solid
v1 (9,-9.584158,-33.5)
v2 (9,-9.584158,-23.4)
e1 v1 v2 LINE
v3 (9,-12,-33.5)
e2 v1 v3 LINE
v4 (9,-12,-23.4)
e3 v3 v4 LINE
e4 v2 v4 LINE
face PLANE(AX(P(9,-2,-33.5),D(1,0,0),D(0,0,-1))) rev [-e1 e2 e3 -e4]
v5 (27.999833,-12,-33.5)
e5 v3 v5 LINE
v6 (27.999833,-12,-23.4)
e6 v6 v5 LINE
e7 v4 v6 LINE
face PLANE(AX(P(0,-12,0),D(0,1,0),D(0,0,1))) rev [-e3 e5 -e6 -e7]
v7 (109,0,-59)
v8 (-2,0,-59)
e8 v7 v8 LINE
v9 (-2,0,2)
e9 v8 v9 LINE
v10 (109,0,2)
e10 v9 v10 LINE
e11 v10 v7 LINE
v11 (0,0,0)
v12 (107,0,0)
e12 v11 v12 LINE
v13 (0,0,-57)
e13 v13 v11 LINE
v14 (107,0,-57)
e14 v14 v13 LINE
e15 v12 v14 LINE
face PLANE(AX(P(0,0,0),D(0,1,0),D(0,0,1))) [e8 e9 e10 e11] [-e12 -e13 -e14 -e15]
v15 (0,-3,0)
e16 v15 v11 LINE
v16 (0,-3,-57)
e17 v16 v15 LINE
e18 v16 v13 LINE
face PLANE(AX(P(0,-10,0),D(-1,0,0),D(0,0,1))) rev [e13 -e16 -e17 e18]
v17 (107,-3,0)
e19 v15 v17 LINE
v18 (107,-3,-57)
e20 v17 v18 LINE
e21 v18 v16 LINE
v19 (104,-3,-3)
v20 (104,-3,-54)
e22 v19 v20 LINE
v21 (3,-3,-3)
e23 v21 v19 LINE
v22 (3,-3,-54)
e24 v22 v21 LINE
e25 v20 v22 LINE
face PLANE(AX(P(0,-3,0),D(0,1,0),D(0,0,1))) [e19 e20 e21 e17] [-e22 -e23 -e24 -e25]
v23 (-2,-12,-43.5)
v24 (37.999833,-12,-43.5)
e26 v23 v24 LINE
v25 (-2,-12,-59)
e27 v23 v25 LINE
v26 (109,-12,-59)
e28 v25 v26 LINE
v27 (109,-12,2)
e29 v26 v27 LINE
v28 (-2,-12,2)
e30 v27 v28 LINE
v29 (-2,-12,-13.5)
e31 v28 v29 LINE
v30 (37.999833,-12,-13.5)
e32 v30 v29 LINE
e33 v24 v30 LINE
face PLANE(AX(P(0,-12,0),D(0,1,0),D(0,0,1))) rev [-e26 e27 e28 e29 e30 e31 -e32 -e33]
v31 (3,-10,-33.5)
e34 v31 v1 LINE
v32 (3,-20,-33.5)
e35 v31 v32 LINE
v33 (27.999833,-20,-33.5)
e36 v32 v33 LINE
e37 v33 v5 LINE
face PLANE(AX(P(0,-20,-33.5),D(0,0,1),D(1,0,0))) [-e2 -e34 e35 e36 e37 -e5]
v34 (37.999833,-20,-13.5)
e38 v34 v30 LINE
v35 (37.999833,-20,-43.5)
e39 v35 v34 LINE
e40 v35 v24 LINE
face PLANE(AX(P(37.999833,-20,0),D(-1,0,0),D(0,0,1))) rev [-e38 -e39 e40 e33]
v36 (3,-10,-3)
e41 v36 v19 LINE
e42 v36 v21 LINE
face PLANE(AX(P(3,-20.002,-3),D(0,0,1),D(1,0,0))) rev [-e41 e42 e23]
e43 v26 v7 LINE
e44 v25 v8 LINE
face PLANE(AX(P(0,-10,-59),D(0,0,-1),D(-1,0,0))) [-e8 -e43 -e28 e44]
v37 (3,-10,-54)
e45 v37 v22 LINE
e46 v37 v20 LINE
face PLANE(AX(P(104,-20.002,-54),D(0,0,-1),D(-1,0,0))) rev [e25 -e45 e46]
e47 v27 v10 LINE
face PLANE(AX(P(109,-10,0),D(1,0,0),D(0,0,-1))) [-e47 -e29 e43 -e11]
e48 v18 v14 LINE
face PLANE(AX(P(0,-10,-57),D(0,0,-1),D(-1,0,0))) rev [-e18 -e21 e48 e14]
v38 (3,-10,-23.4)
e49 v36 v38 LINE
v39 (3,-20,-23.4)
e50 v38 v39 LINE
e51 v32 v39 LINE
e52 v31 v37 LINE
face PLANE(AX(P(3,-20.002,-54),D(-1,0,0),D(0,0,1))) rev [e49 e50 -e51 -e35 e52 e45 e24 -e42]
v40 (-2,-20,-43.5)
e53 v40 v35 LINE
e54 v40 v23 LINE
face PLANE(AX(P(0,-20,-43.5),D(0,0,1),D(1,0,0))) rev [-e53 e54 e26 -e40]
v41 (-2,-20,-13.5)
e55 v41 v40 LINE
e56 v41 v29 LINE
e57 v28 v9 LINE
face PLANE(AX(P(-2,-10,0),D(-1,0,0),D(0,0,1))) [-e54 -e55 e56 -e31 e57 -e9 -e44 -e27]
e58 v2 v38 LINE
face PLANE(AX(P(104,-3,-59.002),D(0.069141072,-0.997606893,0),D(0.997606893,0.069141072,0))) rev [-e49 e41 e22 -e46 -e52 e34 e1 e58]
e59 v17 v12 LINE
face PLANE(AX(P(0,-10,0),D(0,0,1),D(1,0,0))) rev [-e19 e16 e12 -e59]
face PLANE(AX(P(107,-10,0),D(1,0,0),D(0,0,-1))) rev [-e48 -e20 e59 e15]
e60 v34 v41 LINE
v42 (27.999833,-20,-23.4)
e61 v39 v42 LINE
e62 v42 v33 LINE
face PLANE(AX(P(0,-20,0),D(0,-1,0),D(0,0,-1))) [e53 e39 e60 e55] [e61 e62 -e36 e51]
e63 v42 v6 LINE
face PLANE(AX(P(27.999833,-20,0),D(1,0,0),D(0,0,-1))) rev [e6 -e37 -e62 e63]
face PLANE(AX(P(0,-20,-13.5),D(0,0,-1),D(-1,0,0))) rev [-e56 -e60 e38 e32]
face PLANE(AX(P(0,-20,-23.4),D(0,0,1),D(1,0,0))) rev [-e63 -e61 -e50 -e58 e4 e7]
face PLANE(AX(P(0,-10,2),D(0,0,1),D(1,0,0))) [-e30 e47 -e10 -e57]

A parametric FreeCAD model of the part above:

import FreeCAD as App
import Part
import Sketcher

doc = App.newDocument("Part")
body = doc.addObject("PartDesign::Body", "Body")

# Sketch on XZ plane
sketch1 = body.newObject("Sketcher::SketchObject", "Sketch")
sketch1.AttachmentSupport = (doc.getObject("XZ_Plane"), [""])
sketch1.MapMode = "FlatFace"
sketch1.addGeometry([
    Part.LineSegment(App.Vector(-2, -59, 0), App.Vector(-2, 2, 0)),  # 0
    Part.LineSegment(App.Vector(-2, 2, 0), App.Vector(109, 2, 0)),  # 1
    Part.LineSegment(App.Vector(109, 2, 0), App.Vector(109, -59, 0)),  # 2
    Part.LineSegment(App.Vector(109, -59, 0), App.Vector(-2, -59, 0)),  # 3
    Part.LineSegment(App.Vector(107, 0, 0), App.Vector(0, 0, 0)),  # 4
    Part.LineSegment(App.Vector(0, 0, 0), App.Vector(0, -57, 0)),  # 5
    Part.LineSegment(App.Vector(0, -57, 0), App.Vector(107, -57, 0)),  # 6
    Part.LineSegment(App.Vector(107, -57, 0), App.Vector(107, 0, 0)),  # 7
], False)
sketch1.addConstraint([
    Sketcher.Constraint("Coincident", 0, 2, 1, 1),
    Sketcher.Constraint("Coincident", 1, 2, 2, 1),
    Sketcher.Constraint("Coincident", 2, 2, 3, 1),
    Sketcher.Constraint("Coincident", 3, 2, 0, 1),
    Sketcher.Constraint("Coincident", 4, 2, 5, 1),
    Sketcher.Constraint("Coincident", 5, 2, 6, 1),
    Sketcher.Constraint("Coincident", 6, 2, 7, 1),
    Sketcher.Constraint("Coincident", 7, 2, 4, 1),
    Sketcher.Constraint("Vertical", 0),
    Sketcher.Constraint("Horizontal", 1),
    Sketcher.Constraint("Vertical", 2),
    Sketcher.Constraint("Horizontal", 3),
    Sketcher.Constraint("Horizontal", 4),
    Sketcher.Constraint("Vertical", 5),
    Sketcher.Constraint("Horizontal", 6),
    Sketcher.Constraint("Vertical", 7),
    Sketcher.Constraint("Coincident", 4, 2, -1, 1),
    Sketcher.Constraint("DistanceX", 1, 1, 1, 2, 111.0),
    Sketcher.Constraint("DistanceX", 4, 2, 4, 1, 107.0),
    Sketcher.Constraint("DistanceY", 0, 1, 0, 2, 61.0),
    Sketcher.Constraint("DistanceY", 5, 2, 5, 1, 57.0),
    Sketcher.Constraint("DistanceX", 0, 2, -1, 1, 2.0),
    Sketcher.Constraint("DistanceY", -1, 1, 0, 2, 2.0),
])
pad1 = body.newObject("PartDesign::Pad", "Pad")
pad1.Profile = sketch1
pad1.Length = 10

# Sketch on XZ plane
sketch2 = body.newObject("Sketcher::SketchObject", "Sketch001")
sketch2.AttachmentSupport = (doc.getObject("XZ_Plane"), [""])
sketch2.MapMode = "FlatFace"
sketch2.AttachmentOffset = App.Placement(App.Vector(0, 0, 10), App.Rotation())
sketch2.addGeometry([
    Part.LineSegment(App.Vector(109, -59, 0), App.Vector(109, 2, 0)),
    Part.LineSegment(App.Vector(109, 2, 0), App.Vector(-2, 2, 0)),
    Part.LineSegment(App.Vector(-2, 2, 0), App.Vector(-2, -59, 0)),
    Part.LineSegment(App.Vector(-2, -59, 0), App.Vector(109, -59, 0)),
], False)
sketch2.addConstraint([
    Sketcher.Constraint("Coincident", 0, 2, 1, 1),
    Sketcher.Constraint("Coincident", 1, 2, 2, 1),
    Sketcher.Constraint("Coincident", 2, 2, 3, 1),
    Sketcher.Constraint("Coincident", 3, 2, 0, 1),
    Sketcher.Constraint("Vertical", 0),
    Sketcher.Constraint("Horizontal", 1),
    Sketcher.Constraint("Vertical", 2),
    Sketcher.Constraint("Horizontal", 3),
    Sketcher.Constraint("DistanceX", 1, 2, 1, 1, 111.0),
    Sketcher.Constraint("DistanceY", 0, 1, 0, 2, 61.0),
    Sketcher.Constraint("DistanceX", -1, 1, 0, 2, 109.0),
    Sketcher.Constraint("DistanceY", -1, 1, 0, 2, 2.0),
])
pad2 = body.newObject("PartDesign::Pad", "Pad001")
pad2.Profile = sketch2
pad2.Length = 2

# Sketch on XZ plane
sketch3 = body.newObject("Sketcher::SketchObject", "Sketch002")
sketch3.AttachmentSupport = (doc.getObject("XZ_Plane"), [""])
sketch3.MapMode = "FlatFace"
sketch3.AttachmentOffset = App.Placement(App.Vector(0, 0, 12), App.Rotation())
sketch3.addGeometry([
    Part.LineSegment(App.Vector(-2, -44, 0), App.Vector(38, -44, 0)),  # 0
    Part.LineSegment(App.Vector(38, -44, 0), App.Vector(38, -14, 0)),  # 1
    Part.LineSegment(App.Vector(38, -14, 0), App.Vector(-2, -14, 0)),  # 2
    Part.LineSegment(App.Vector(-2, -14, 0), App.Vector(-2, -44, 0)),  # 3
    Part.LineSegment(App.Vector(28, -34, 0), App.Vector(0, -34, 0)),  # 4
    Part.LineSegment(App.Vector(0, -34, 0), App.Vector(0, -23, 0)),  # 5
    Part.LineSegment(App.Vector(0, -23, 0), App.Vector(28, -23, 0)),  # 6
    Part.LineSegment(App.Vector(28, -23, 0), App.Vector(28, -34, 0)),  # 7
], False)
sketch3.addConstraint([
    Sketcher.Constraint("Coincident", 0, 2, 1, 1),
    Sketcher.Constraint("Coincident", 1, 2, 2, 1),
    Sketcher.Constraint("Coincident", 2, 2, 3, 1),
    Sketcher.Constraint("Coincident", 3, 2, 0, 1),
    Sketcher.Constraint("Coincident", 4, 2, 5, 1),
    Sketcher.Constraint("Coincident", 5, 2, 6, 1),
    Sketcher.Constraint("Coincident", 6, 2, 7, 1),
    Sketcher.Constraint("Coincident", 7, 2, 4, 1),
    Sketcher.Constraint("Horizontal", 0),
    Sketcher.Constraint("Vertical", 1),
    Sketcher.Constraint("Horizontal", 2),
    Sketcher.Constraint("Vertical", 3),
    Sketcher.Constraint("Horizontal", 4),
    Sketcher.Constraint("Vertical", 5),
    Sketcher.Constraint("Horizontal", 6),
    Sketcher.Constraint("Vertical", 7),
    Sketcher.Constraint("PointOnObject", 4, 2, -2),
    Sketcher.Constraint("DistanceY", 1, 1, 1, 2, 30.0),
    Sketcher.Constraint("DistanceY", 5, 1, 5, 2, 10.1),
    Sketcher.Constraint("DistanceX", 2, 2, -1, 1, 2.0),
    Sketcher.Constraint("DistanceY", 3, 2, 4, 2, 10.0),
    Sketcher.Constraint("DistanceX", 6, 2, 1, 2, 10.0),
    Sketcher.Constraint("DistanceY", 0, 2, -1, 1, 43.5),
    Sketcher.Constraint("DistanceX", 0, 1, 0, 2, 39.999833),
])
pad3 = body.newObject("PartDesign::Pad", "Pad002")
pad3.Profile = sketch3
pad3.Length = 8

# Sketch on XZ plane
sketch4 = body.newObject("Sketcher::SketchObject", "Sketch003")
sketch4.AttachmentSupport = (doc.getObject("XZ_Plane"), [""])
sketch4.MapMode = "FlatFace"
sketch4.AttachmentOffset = App.Placement(App.Vector(0, 0, 3), App.Rotation())
sketch4.addGeometry([
    Part.LineSegment(App.Vector(0, -57, 0), App.Vector(0, 0, 0)),  # 0
    Part.LineSegment(App.Vector(0, 0, 0), App.Vector(107, 0, 0)),  # 1
    Part.LineSegment(App.Vector(107, 0, 0), App.Vector(107, -57, 0)),  # 2
    Part.LineSegment(App.Vector(107, -57, 0), App.Vector(0, -57, 0)),  # 3
    Part.LineSegment(App.Vector(104, -3, 0), App.Vector(3, -3, 0)),  # 4
    Part.LineSegment(App.Vector(3, -3, 0), App.Vector(3, -54, 0)),  # 5
    Part.LineSegment(App.Vector(3, -54, 0), App.Vector(104, -54, 0)),  # 6
    Part.LineSegment(App.Vector(104, -54, 0), App.Vector(104, -3, 0)),  # 7
], False)
sketch4.addConstraint([
    Sketcher.Constraint("Coincident", 0, 2, 1, 1),
    Sketcher.Constraint("Coincident", 1, 2, 2, 1),
    Sketcher.Constraint("Coincident", 2, 2, 3, 1),
    Sketcher.Constraint("Coincident", 3, 2, 0, 1),
    Sketcher.Constraint("Coincident", 4, 2, 5, 1),
    Sketcher.Constraint("Coincident", 5, 2, 6, 1),
    Sketcher.Constraint("Coincident", 6, 2, 7, 1),
    Sketcher.Constraint("Coincident", 7, 2, 4, 1),
    Sketcher.Constraint("Vertical", 0),
    Sketcher.Constraint("Horizontal", 1),
    Sketcher.Constraint("Vertical", 2),
    Sketcher.Constraint("Horizontal", 3),
    Sketcher.Constraint("Horizontal", 4),
    Sketcher.Constraint("Vertical", 5),
    Sketcher.Constraint("Horizontal", 6),
    Sketcher.Constraint("Vertical", 7),
    Sketcher.Constraint("Coincident", 0, 2, -1, 1),
    Sketcher.Constraint("DistanceX", 1, 1, 1, 2, 107.0),
    Sketcher.Constraint("DistanceX", 4, 2, 4, 1, 101.0),
    Sketcher.Constraint("DistanceY", 0, 1, 0, 2, 57.0),
    Sketcher.Constraint("DistanceY", 5, 2, 5, 1, 51.0),
    Sketcher.Constraint("DistanceX", -1, 1, 4, 2, 3.0),
    Sketcher.Constraint("DistanceY", 4, 2, -1, 1, 3.0),
])
pad4 = body.newObject("PartDesign::Pad", "Pad003")
pad4.Profile = sketch4
pad4.Type = "UpToFirst"

# Sketch on XY plane
sketch5 = body.newObject("Sketcher::SketchObject", "Sketch004")
sketch5.AttachmentSupport = (doc.getObject("XY_Plane"), [""])
sketch5.MapMode = "FlatFace"
sketch5.AttachmentOffset = App.Placement(App.Vector(0, 0, -3), App.Rotation())
sketch5.addGeometry([
    Part.LineSegment(App.Vector(3, -10, 0), App.Vector(104, -3, 0)),
    Part.LineSegment(App.Vector(104, -3, 0), App.Vector(104, -10, 0)),
    Part.LineSegment(App.Vector(104, -10, 0), App.Vector(3, -10, 0)),
], False)
sketch5.addConstraint([
    Sketcher.Constraint("Coincident", 0, 2, 1, 1),
    Sketcher.Constraint("Coincident", 1, 2, 2, 1),
    Sketcher.Constraint("Coincident", 2, 2, 0, 1),
    Sketcher.Constraint("Vertical", 1),
    Sketcher.Constraint("Horizontal", 2),
    Sketcher.Constraint("DistanceX", 2, 2, 2, 1, 101.0),
    Sketcher.Constraint("DistanceY", 1, 2, 1, 1, 7.0),
    Sketcher.Constraint("DistanceX", -1, 1, 0, 2, 104.0),
    Sketcher.Constraint("DistanceY", 0, 2, -1, 1, 3.0),
])
pad5 = body.newObject("PartDesign::Pad", "Pad004")
pad5.Profile = sketch5
pad5.Type = "UpToFirst"
pad5.Reversed = True

# Sketch on XZ plane
sketch6 = body.newObject("Sketcher::SketchObject", "Sketch005")
sketch6.AttachmentSupport = (doc.getObject("XZ_Plane"), [""])
sketch6.MapMode = "FlatFace"
sketch6.AttachmentOffset = App.Placement(App.Vector(0, 0, 12), App.Rotation())
sketch6.addGeometry([
    Part.LineSegment(App.Vector(3, -23, 0), App.Vector(3, -34, 0)),
    Part.LineSegment(App.Vector(3, -34, 0), App.Vector(9, -34, 0)),
    Part.LineSegment(App.Vector(9, -34, 0), App.Vector(9, -23, 0)),
    Part.LineSegment(App.Vector(9, -23, 0), App.Vector(3, -23, 0)),
], False)
sketch6.addConstraint([
    Sketcher.Constraint("Coincident", 0, 2, 1, 1),
    Sketcher.Constraint("Coincident", 1, 2, 2, 1),
    Sketcher.Constraint("Coincident", 2, 2, 3, 1),
    Sketcher.Constraint("Coincident", 3, 2, 0, 1),
    Sketcher.Constraint("Vertical", 0),
    Sketcher.Constraint("Horizontal", 1),
    Sketcher.Constraint("Vertical", 2),
    Sketcher.Constraint("Horizontal", 3),
    Sketcher.Constraint("DistanceX", 1, 1, 1, 2, 6.0),
    Sketcher.Constraint("DistanceY", 0, 2, 0, 1, 10.1),
    Sketcher.Constraint("DistanceX", -1, 1, 0, 2, 3.0),
    Sketcher.Constraint("DistanceY", 0, 2, -1, 1, 33.5),
])
pocket1 = body.newObject("PartDesign::Pocket", "Pocket")
pocket1.Profile = sketch6
pocket1.Length = 10

# Sketch on XZ plane
sketch7 = body.newObject("Sketcher::SketchObject", "Sketch006")
sketch7.AttachmentSupport = (doc.getObject("XZ_Plane"), [""])
sketch7.MapMode = "FlatFace"
sketch7.AttachmentOffset = App.Placement(App.Vector(0, 0, 12), App.Rotation())
sketch7.addGeometry([
    Part.LineSegment(App.Vector(0, -23.4, 0), App.Vector(0, -33.5, 0)),
    Part.LineSegment(App.Vector(0, -33.5, 0), App.Vector(3, -33.5, 0)),
    Part.LineSegment(App.Vector(3, -33.5, 0), App.Vector(3, -23.4, 0)),
    Part.LineSegment(App.Vector(3, -23.4, 0), App.Vector(0, -23.4, 0)),
], False)
sketch7.addConstraint([
    Sketcher.Constraint("Coincident", 0, 2, 1, 1),
    Sketcher.Constraint("Coincident", 1, 2, 2, 1),
    Sketcher.Constraint("Coincident", 2, 2, 3, 1),
    Sketcher.Constraint("Coincident", 3, 2, 0, 1),
    Sketcher.Constraint("Vertical", 0),
    Sketcher.Constraint("Horizontal", 1),
    Sketcher.Constraint("Vertical", 2),
    Sketcher.Constraint("Horizontal", 3),
    Sketcher.Constraint("PointOnObject", 0, 2, -2),
    Sketcher.Constraint("DistanceX", 1, 1, 1, 2, 3.0),
    Sketcher.Constraint("DistanceY", 0, 2, 0, 1, 10.1),
    Sketcher.Constraint("DistanceY", 0, 2, -1, 1, 33.5),
])
pad6 = body.newObject("PartDesign::Pad", "Pad005")
pad6.Profile = sketch7
pad6.Length = 8

doc.recompute()
